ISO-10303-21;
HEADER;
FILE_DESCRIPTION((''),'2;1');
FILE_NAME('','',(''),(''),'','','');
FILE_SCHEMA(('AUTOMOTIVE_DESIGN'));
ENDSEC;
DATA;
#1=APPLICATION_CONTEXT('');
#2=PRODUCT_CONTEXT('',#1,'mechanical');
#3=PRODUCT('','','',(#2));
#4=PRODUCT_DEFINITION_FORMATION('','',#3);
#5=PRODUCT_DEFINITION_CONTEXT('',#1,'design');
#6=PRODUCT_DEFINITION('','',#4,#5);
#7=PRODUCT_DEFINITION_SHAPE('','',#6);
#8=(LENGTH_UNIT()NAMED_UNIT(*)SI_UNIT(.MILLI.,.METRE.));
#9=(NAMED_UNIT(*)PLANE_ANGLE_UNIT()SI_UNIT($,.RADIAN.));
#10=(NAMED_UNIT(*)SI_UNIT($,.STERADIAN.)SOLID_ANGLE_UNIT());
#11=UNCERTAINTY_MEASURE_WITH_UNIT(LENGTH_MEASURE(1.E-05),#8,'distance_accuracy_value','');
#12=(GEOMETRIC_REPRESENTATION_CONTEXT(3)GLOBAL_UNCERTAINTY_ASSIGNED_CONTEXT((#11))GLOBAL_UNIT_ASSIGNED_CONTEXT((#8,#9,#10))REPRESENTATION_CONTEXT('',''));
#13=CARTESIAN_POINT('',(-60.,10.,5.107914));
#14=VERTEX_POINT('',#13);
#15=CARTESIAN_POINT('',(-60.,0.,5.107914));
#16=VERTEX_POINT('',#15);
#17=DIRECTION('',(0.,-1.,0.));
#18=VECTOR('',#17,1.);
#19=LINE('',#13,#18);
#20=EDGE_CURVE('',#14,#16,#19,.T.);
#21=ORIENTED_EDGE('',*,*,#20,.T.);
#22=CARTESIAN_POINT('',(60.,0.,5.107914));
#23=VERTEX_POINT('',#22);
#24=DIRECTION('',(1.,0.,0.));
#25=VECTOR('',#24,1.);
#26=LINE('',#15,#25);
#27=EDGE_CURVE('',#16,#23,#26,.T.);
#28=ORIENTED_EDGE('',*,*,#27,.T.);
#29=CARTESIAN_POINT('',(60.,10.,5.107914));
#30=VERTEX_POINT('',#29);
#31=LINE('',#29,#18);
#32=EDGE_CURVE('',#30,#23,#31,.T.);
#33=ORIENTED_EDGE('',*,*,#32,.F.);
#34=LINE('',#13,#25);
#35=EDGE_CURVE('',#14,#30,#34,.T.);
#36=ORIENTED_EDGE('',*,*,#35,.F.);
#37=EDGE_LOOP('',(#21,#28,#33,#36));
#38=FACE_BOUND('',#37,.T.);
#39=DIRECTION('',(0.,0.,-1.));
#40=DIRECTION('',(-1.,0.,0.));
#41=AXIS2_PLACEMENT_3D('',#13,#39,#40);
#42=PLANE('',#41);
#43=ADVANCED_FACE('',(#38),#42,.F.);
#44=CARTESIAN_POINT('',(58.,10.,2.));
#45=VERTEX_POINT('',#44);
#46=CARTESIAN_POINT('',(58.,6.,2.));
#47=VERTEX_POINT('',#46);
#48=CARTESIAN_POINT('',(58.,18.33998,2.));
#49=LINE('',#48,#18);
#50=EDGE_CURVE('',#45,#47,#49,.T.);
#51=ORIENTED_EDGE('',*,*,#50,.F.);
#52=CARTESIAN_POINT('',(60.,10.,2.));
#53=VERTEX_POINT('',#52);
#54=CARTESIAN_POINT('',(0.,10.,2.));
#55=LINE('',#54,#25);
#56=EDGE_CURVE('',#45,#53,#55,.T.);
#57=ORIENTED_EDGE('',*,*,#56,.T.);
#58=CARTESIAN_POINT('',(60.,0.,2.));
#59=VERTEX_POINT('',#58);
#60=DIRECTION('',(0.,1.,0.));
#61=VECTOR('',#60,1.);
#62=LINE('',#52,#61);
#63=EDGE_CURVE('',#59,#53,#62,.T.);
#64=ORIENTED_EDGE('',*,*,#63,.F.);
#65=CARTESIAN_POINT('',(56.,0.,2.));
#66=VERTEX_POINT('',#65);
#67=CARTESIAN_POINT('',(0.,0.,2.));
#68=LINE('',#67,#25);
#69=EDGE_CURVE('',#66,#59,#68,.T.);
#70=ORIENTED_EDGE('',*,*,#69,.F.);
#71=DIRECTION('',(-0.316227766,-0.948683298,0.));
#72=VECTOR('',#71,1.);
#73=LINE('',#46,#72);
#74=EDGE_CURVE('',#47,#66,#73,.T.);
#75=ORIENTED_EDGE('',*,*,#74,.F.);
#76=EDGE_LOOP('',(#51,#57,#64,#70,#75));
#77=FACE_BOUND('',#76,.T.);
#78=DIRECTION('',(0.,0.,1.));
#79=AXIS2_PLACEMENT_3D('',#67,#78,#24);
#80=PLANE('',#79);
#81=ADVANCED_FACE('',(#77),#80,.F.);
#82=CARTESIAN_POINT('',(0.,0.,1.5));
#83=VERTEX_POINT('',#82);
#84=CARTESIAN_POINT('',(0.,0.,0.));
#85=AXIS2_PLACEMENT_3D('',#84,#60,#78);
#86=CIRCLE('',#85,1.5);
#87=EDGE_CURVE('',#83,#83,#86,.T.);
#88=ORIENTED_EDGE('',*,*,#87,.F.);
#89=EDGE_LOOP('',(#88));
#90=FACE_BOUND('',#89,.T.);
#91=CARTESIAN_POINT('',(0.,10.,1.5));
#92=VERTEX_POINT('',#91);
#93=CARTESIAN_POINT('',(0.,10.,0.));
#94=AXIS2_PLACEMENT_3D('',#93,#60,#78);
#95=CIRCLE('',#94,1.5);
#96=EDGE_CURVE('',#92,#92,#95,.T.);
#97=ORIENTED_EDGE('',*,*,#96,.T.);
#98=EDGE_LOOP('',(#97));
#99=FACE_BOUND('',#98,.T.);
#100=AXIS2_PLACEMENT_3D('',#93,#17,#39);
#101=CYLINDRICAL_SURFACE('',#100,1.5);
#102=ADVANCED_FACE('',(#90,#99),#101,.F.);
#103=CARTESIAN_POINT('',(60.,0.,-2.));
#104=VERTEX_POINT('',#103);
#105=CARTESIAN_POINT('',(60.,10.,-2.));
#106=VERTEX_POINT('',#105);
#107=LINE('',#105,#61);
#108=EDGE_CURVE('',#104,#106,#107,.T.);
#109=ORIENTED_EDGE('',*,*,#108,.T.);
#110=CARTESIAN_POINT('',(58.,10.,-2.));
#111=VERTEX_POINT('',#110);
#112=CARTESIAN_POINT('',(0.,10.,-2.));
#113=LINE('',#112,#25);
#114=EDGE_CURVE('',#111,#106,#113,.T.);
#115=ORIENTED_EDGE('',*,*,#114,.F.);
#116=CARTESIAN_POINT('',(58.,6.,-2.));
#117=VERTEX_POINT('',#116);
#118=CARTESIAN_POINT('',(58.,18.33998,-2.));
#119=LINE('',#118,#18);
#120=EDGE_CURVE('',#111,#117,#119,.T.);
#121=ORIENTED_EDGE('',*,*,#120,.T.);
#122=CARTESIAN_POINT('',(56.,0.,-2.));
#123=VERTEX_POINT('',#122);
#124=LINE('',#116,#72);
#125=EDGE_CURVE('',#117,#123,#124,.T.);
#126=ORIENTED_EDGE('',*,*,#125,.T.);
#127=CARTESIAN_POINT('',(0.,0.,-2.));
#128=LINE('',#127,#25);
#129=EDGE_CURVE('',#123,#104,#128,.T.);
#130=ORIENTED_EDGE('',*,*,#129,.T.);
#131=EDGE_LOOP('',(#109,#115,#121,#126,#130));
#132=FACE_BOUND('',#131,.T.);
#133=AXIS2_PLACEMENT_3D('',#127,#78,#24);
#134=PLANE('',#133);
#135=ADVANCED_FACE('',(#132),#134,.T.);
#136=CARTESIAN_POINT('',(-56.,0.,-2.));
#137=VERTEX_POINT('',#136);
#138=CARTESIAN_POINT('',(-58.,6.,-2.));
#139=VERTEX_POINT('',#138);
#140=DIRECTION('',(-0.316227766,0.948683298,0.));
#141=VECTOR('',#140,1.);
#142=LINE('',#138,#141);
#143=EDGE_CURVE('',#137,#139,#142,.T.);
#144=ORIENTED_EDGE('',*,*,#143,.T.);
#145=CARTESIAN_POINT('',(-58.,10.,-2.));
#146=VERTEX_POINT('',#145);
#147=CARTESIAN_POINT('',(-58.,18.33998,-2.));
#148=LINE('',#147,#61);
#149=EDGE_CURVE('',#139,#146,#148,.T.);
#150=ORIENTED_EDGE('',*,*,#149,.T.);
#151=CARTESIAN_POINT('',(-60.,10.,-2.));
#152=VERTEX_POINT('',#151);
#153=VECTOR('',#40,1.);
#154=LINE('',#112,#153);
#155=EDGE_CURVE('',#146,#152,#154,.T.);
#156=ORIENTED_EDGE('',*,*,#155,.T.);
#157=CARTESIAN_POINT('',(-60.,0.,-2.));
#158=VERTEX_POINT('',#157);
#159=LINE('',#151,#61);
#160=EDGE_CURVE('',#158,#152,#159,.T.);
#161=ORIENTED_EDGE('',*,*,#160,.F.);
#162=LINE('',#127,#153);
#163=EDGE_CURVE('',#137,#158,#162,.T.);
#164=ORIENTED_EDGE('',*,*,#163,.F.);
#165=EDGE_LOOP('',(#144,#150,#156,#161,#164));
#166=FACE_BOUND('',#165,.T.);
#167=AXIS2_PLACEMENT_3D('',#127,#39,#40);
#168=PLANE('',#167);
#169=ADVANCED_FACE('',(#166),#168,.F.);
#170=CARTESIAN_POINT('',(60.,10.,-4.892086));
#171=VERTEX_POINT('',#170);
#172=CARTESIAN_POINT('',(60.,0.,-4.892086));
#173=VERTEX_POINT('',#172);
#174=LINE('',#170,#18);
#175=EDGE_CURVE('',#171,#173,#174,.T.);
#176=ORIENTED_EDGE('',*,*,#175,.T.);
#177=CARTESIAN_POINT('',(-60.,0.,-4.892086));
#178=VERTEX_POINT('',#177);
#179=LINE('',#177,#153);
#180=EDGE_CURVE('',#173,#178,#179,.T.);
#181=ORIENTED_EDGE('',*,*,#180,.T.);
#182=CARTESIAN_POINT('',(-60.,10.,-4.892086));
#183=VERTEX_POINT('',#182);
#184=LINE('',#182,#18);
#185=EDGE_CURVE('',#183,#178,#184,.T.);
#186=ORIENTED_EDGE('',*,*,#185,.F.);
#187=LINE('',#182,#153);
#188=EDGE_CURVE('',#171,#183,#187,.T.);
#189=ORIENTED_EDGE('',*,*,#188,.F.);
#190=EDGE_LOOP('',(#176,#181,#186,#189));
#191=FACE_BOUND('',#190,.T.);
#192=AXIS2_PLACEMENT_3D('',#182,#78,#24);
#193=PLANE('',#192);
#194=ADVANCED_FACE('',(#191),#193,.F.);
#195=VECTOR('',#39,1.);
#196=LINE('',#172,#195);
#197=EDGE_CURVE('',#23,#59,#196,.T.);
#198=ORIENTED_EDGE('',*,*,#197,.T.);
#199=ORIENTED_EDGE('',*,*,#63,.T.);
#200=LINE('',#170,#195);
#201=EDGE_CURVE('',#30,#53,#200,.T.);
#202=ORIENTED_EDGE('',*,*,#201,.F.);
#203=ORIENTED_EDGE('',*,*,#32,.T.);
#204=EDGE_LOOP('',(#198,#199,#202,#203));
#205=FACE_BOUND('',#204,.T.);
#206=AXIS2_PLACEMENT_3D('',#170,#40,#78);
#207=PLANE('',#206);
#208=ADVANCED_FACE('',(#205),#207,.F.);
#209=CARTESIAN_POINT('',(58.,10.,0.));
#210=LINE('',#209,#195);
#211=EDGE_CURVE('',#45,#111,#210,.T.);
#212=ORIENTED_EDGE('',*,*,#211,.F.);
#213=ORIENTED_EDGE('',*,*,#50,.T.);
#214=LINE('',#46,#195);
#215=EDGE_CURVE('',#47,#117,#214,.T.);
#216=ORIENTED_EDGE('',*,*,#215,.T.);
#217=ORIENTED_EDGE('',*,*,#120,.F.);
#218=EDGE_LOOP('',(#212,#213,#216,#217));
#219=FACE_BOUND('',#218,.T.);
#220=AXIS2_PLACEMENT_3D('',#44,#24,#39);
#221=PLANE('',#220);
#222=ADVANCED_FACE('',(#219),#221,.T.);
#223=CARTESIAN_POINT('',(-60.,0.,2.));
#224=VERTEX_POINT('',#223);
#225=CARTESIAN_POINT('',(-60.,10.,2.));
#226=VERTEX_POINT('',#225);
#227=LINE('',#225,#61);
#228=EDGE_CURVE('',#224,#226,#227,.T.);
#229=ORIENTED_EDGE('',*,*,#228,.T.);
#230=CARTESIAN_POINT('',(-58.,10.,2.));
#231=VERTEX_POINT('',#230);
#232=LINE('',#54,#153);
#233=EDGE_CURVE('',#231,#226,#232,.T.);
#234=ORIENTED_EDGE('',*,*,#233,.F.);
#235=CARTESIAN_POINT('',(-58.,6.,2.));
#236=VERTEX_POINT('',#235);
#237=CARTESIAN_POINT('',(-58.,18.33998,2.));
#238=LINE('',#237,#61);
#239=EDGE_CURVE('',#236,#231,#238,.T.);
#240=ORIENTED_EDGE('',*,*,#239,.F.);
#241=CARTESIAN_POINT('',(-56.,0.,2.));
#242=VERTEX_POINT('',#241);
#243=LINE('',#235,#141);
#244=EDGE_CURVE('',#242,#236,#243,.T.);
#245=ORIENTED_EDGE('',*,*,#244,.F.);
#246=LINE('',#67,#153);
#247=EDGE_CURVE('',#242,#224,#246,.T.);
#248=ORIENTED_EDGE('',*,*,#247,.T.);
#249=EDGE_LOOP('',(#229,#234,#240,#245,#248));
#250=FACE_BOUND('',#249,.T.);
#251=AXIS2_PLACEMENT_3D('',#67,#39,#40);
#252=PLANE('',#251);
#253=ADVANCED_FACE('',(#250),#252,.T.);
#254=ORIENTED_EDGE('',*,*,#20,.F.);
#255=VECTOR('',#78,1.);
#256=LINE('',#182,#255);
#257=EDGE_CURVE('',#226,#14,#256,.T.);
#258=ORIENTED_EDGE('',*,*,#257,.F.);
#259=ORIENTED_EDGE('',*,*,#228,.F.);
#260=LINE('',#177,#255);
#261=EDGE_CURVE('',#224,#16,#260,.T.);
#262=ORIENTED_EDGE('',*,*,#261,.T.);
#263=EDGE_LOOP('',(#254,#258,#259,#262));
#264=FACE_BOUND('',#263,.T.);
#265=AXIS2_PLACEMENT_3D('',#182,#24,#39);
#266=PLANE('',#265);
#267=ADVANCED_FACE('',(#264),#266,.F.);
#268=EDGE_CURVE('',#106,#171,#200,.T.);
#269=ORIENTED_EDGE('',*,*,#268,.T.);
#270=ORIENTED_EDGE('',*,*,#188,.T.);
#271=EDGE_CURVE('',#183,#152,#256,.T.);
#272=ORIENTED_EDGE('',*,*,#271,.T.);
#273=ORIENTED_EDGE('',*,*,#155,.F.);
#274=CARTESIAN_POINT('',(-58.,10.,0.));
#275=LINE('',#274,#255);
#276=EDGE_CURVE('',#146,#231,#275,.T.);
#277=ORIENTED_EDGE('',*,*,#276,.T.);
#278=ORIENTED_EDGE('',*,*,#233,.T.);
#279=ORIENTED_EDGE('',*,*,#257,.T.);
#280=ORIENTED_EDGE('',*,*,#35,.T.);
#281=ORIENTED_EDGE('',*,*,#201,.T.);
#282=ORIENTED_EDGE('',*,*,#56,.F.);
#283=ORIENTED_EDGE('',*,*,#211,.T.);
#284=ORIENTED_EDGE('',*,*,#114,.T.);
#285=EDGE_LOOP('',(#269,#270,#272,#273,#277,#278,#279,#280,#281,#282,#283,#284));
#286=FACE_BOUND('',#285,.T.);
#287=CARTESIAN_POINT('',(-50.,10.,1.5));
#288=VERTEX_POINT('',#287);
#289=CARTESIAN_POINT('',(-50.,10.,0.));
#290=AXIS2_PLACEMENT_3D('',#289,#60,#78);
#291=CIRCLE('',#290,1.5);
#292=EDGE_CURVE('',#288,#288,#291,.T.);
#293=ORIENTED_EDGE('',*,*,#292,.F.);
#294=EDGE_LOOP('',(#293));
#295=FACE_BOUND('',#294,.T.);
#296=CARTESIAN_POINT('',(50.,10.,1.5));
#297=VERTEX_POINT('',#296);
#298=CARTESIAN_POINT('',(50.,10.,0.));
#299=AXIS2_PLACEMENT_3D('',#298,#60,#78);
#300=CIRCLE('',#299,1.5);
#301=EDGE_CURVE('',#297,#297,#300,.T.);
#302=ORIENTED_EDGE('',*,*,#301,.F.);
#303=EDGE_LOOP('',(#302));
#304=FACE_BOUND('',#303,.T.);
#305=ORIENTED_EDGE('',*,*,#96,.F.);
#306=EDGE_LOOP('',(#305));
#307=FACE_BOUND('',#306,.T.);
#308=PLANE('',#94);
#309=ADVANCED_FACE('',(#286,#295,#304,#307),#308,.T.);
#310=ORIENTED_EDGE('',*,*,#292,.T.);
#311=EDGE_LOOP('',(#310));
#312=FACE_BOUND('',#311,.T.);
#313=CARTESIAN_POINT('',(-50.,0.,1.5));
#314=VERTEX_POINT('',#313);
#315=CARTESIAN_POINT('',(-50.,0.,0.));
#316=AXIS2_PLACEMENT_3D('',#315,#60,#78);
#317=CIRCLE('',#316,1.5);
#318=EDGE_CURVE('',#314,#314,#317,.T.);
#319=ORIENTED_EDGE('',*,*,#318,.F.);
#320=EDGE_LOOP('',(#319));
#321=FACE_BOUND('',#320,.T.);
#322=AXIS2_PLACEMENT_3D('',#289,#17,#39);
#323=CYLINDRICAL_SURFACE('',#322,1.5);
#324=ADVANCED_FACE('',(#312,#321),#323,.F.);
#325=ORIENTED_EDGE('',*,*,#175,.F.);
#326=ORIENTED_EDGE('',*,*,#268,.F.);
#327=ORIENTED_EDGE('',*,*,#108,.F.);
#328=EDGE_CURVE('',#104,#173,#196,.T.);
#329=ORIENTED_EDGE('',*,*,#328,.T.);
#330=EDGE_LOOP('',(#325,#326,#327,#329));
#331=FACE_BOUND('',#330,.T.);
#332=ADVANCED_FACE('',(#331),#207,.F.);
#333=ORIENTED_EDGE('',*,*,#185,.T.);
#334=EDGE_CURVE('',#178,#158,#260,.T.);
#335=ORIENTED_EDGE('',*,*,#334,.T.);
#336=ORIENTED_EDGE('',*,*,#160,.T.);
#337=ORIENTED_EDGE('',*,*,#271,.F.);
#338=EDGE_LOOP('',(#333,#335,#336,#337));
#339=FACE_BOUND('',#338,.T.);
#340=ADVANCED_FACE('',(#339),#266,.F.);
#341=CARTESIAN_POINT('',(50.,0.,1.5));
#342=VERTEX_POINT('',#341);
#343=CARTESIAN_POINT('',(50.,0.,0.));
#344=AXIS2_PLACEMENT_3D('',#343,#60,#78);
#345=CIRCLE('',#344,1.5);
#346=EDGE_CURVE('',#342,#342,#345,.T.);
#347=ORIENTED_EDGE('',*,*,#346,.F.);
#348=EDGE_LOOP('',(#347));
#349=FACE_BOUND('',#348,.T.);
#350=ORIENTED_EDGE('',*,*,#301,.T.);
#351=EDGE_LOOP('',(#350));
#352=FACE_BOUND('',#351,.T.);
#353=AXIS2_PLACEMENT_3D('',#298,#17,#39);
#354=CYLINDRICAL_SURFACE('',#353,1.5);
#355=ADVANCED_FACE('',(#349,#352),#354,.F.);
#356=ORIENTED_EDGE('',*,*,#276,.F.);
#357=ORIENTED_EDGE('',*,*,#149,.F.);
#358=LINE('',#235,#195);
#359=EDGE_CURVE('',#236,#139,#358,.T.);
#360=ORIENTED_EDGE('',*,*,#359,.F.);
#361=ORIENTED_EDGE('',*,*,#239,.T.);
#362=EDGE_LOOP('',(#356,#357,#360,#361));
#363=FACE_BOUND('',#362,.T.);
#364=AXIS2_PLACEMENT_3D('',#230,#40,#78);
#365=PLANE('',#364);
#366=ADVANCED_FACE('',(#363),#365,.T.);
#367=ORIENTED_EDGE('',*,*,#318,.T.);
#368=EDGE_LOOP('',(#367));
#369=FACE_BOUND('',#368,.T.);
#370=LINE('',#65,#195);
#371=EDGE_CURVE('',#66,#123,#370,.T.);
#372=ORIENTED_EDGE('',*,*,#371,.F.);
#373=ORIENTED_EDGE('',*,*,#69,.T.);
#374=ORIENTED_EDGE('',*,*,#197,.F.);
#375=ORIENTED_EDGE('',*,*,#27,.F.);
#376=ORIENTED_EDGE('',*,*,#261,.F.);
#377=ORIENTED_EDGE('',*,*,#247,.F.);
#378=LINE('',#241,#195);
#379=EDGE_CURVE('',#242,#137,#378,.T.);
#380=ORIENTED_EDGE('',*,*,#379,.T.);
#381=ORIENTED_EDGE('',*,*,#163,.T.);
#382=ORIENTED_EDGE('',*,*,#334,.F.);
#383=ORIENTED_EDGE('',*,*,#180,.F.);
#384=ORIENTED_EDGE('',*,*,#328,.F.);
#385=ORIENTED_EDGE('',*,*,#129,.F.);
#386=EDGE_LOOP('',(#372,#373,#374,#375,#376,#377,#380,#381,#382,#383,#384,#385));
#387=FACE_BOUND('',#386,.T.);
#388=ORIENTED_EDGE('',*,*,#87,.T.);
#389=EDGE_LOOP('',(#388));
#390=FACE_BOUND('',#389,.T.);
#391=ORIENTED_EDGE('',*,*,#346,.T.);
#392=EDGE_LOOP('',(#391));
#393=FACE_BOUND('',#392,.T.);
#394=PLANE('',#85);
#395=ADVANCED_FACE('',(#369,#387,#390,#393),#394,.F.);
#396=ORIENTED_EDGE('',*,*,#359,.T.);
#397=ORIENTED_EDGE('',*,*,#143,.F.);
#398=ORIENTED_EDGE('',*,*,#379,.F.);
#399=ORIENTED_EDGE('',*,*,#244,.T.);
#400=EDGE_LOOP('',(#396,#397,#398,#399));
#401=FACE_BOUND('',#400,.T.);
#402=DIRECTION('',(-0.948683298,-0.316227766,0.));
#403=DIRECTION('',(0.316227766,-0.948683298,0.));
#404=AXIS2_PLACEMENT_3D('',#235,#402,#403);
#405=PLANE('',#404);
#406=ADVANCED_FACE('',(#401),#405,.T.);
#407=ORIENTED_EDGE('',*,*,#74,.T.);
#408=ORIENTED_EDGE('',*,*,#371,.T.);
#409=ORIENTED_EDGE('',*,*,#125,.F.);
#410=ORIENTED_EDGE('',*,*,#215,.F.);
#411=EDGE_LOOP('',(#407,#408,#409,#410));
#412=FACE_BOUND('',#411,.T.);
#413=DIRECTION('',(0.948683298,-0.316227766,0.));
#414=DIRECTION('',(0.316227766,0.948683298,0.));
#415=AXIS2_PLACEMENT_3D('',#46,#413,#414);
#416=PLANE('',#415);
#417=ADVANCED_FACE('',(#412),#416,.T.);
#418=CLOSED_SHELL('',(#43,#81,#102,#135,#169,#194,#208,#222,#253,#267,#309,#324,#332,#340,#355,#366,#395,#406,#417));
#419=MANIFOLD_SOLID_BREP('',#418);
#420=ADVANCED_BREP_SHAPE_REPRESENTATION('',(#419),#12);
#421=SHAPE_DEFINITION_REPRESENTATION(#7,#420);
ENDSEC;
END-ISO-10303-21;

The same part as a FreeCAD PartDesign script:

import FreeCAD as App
import Part
import Sketcher

V = App.Vector
Q = App.Units.Quantity

doc = App.newDocument("Part")
body = doc.addObject("PartDesign::Body", "Body")

# Sketch on XZ plane
sketch1 = body.newObject("Sketcher::SketchObject", "Sketch")
sketch1.AttachmentSupport = (doc.getObject("XZ_Plane"), [""])
sketch1.MapMode = "FlatFace"
sketch1.addGeometry([
    Part.LineSegment(V(-60, -4.9, 0), V(-60, 5.1, 0)),  # 0
    Part.LineSegment(V(-60, 5.1, 0), V(60, 5.1, 0)),  # 1
    Part.LineSegment(V(60, 5.1, 0), V(60, -4.9, 0)),  # 2
    Part.LineSegment(V(60, -4.9, 0), V(-60, -4.9, 0)),  # 3
    Part.Circle(V(-50, 0, 0), V(0, 0, 1), 1.5),  # 4
    Part.Circle(V(0, 0, 0), V(0, 0, 1), 1.5),  # 5
    Part.Circle(V(50, 0, 0), V(0, 0, 1), 1.5),  # 6
], False)
sketch1.addConstraint([
    Sketcher.Constraint("Coincident", 0, 2, 1, 1),
    Sketcher.Constraint("Coincident", 1, 2, 2, 1),
    Sketcher.Constraint("Coincident", 2, 2, 3, 1),
    Sketcher.Constraint("Coincident", 3, 2, 0, 1),
    Sketcher.Constraint("Vertical", 0),
    Sketcher.Constraint("Horizontal", 1),
    Sketcher.Constraint("Vertical", 2),
    Sketcher.Constraint("Horizontal", 3),
    Sketcher.Constraint("Coincident", 5, 3, -1, 1),
    Sketcher.Constraint("Equal", 4, 5),
    Sketcher.Constraint("Equal", 5, 6),
    Sketcher.Constraint("Symmetric", 4, 3, 6, 3, -1, 1),
    Sketcher.Constraint("PointOnObject", 4, 3, -1),
    Sketcher.Constraint("Diameter", 4, Q("3 mm")),
    Sketcher.Constraint("DistanceX", 1, 1, 1, 2, Q("120 mm")),
    Sketcher.Constraint("DistanceY", 0, 1, 0, 2, Q("10 mm")),
    Sketcher.Constraint("DistanceX", 4, 3, -1, 1, Q("50 mm")),
    Sketcher.Constraint("DistanceX", 0, 2, -1, 1, Q("60 mm")),
    Sketcher.Constraint("DistanceY", -1, 1, 0, 2, Q("5.107914 mm")),
])
pad1 = body.newObject("PartDesign::Pad", "Pad")
pad1.Profile = sketch1
pad1.Length = 10
pad1.Reversed = True

# Sketch on XY plane
sketch2 = body.newObject("Sketcher::SketchObject", "Sketch001")
sketch2.AttachmentSupport = (doc.getObject("XY_Plane"), [""])
sketch2.MapMode = "FlatFace"
sketch2.addGeometry([
    Part.LineSegment(V(-58, 6, 0), V(-58, 18, 0)),  # 0
    Part.LineSegment(V(-58, 18, 0), V(-73, 18, 0)),  # 1
    Part.LineSegment(V(-73, 18, 0), V(-73, -11, 0)),  # 2
    Part.LineSegment(V(-73, -11, 0), V(-56, -11, 0)),  # 3
    Part.LineSegment(V(-56, -11, 0), V(-56, 0, 0)),  # 4
    Part.LineSegment(V(-56, 0, 0), V(-58, 6, 0)),  # 5
    Part.LineSegment(V(58, 6, 0), V(56, 0, 0)),  # 6
    Part.LineSegment(V(56, 0, 0), V(56, -11, 0)),  # 7
    Part.LineSegment(V(56, -11, 0), V(73, -11, 0)),  # 8
    Part.LineSegment(V(73, -11, 0), V(73, 18, 0)),  # 9
    Part.LineSegment(V(73, 18, 0), V(58, 18, 0)),  # 10
    Part.LineSegment(V(58, 18, 0), V(58, 6, 0)),  # 11
], False)
sketch2.addConstraint([
    Sketcher.Constraint("Coincident", 0, 2, 1, 1),
    Sketcher.Constraint("Coincident", 1, 2, 2, 1),
    Sketcher.Constraint("Coincident", 2, 2, 3, 1),
    Sketcher.Constraint("Coincident", 3, 2, 4, 1),
    Sketcher.Constraint("Coincident", 4, 2, 5, 1),
    Sketcher.Constraint("Coincident", 5, 2, 0, 1),
    Sketcher.Constraint("Coincident", 6, 2, 7, 1),
    Sketcher.Constraint("Coincident", 7, 2, 8, 1),
    Sketcher.Constraint("Coincident", 8, 2, 9, 1),
    Sketcher.Constraint("Coincident", 9, 2, 10, 1),
    Sketcher.Constraint("Coincident", 10, 2, 11, 1),
    Sketcher.Constraint("Coincident", 11, 2, 6, 1),
    Sketcher.Constraint("Vertical", 0),
    Sketcher.Constraint("Horizontal", 1),
    Sketcher.Constraint("Vertical", 2),
    Sketcher.Constraint("Horizontal", 3),
    Sketcher.Constraint("Vertical", 4),
    Sketcher.Constraint("Vertical", 7),
    Sketcher.Constraint("Horizontal", 8),
    Sketcher.Constraint("Vertical", 9),
    Sketcher.Constraint("Horizontal", 10),
    Sketcher.Constraint("Vertical", 11),
    Sketcher.Constraint("Symmetric", 4, 2, 6, 2, -1, 1),
    Sketcher.Constraint("Symmetric", 2, 2, 8, 2, -2),
    Sketcher.Constraint("Symmetric", 0, 2, 10, 2, -2),
    Sketcher.Constraint("PointOnObject", 4, 2, -1),
    Sketcher.Constraint("Horizontal", 5, 2, 11, 2),
    Sketcher.Constraint("DistanceX", 0, 2, -1, 1, Q("58 mm")),
    Sketcher.Constraint("DistanceX", 3, 2, -1, 1, Q("56 mm")),
    Sketcher.Constraint("DistanceY", -1, 1, 5, 2, Q("6 mm")),
    Sketcher.Constraint("DistanceX", 1, 2, 1, 1, Q("15.153181 mm")),
    Sketcher.Constraint("DistanceY", 0, 1, 0, 2, Q("12.33998 mm")),
    Sketcher.Constraint("DistanceY", 2, 2, 2, 1, Q("29.140733 mm")),
])
pocket1 = body.newObject("PartDesign::Pocket", "Pocket")
pocket1.Profile = sketch2
pocket1.Type = "TwoLengths"
pocket1.Length = 2
pocket1.Length2 = 2
pocket1.Reversed = True

doc.recompute()
